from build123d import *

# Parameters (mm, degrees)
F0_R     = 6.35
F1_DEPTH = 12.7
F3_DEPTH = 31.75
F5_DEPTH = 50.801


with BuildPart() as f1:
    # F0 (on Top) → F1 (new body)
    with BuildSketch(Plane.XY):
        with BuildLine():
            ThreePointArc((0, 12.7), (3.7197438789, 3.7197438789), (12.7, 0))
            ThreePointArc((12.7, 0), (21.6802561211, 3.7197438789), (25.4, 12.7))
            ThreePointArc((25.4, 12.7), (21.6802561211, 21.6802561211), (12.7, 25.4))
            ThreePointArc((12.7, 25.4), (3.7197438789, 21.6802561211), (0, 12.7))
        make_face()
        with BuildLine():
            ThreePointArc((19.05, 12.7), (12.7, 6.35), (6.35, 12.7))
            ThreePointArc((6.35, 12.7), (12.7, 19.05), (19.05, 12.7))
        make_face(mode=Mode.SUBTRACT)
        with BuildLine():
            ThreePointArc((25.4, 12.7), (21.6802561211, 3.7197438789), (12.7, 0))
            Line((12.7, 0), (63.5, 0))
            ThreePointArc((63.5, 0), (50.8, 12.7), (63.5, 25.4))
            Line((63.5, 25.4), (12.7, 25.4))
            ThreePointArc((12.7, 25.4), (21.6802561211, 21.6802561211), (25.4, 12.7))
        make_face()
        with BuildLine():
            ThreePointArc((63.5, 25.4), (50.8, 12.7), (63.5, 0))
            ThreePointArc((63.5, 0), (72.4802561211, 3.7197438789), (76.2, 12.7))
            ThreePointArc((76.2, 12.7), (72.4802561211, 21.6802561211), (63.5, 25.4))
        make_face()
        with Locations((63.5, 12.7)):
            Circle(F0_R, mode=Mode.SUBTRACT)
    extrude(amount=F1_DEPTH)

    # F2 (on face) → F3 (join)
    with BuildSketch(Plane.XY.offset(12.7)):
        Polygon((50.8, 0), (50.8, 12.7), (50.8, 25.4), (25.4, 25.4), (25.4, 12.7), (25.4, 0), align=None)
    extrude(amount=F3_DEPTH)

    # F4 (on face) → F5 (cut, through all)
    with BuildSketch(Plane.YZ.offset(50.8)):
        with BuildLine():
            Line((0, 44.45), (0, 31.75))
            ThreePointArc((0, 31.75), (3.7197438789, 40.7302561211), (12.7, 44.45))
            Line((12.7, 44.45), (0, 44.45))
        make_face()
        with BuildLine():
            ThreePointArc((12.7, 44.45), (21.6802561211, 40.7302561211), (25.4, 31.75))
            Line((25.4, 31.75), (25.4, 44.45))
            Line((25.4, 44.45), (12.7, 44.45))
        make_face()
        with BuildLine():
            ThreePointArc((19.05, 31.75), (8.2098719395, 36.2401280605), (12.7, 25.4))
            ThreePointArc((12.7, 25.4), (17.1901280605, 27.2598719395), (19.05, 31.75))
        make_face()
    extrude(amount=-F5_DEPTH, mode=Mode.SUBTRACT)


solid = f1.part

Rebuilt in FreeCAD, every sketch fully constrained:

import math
import FreeCAD as App
import Part
import Sketcher

V = App.Vector
Q = App.Units.Quantity


def add_polygon(sketch, points):
    """Adds a closed chain of lines whose ends are joined by coincident constraints."""
    first, n = sketch.GeometryCount, len(points)
    for a, b in zip(points, points[1:] + points[:1]):
        sketch.addGeometry(Part.LineSegment(App.Vector(*a, 0), App.Vector(*b, 0)), False)
    for i in range(n):
        sketch.addConstraint(Sketcher.Constraint("Coincident", first + i, 2, first + (i + 1) % n, 1))

doc = App.newDocument("Part")
body = doc.addObject("PartDesign::Body", "Body")

sketch1 = body.newObject("Sketcher::SketchObject", "Sketch")
sketch1.AttachmentSupport = (doc.getObject("XY_Plane"), [""])
sketch1.MapMode = "FlatFace"
sketch1.addGeometry(Part.ArcOfCircle(Part.Circle(V(13, 13, 0), V(0, 0, 1), 13), math.radians(180), math.radians(270)), False)
sketch1.addGeometry(Part.LineSegment(V(13, 0, 0), V(64, 0, 0)), False)
sketch1.addGeometry(Part.ArcOfCircle(Part.Circle(V(64, 13, 0), V(0, 0, 1), 13), math.radians(-90), math.radians(0)), False)
sketch1.addGeometry(Part.ArcOfCircle(Part.Circle(V(64, 13, 0), V(0, 0, 1), 13), math.radians(0), math.radians(90)), False)
sketch1.addGeometry(Part.LineSegment(V(64, 25, 0), V(13, 25, 0)), False)
sketch1.addGeometry(Part.ArcOfCircle(Part.Circle(V(13, 13, 0), V(0, 0, 1), 13), math.radians(90), math.radians(180)), False)
sketch1.addGeometry(Part.Circle(V(13, 13, 0), V(0, 0, 1), 6), False)
sketch1.addGeometry(Part.Circle(V(64, 13, 0), V(0, 0, 1), 6), False)
sketch1.addConstraint(Sketcher.Constraint("Tangent", 0, 2, 1, 1))
sketch1.addConstraint(Sketcher.Constraint("Tangent", 1, 2, 2, 1))
sketch1.addConstraint(Sketcher.Constraint("Tangent", 2, 2, 3, 1))
sketch1.addConstraint(Sketcher.Constraint("Tangent", 3, 2, 4, 1))
sketch1.addConstraint(Sketcher.Constraint("Tangent", 4, 2, 5, 1))
sketch1.addConstraint(Sketcher.Constraint("Tangent", 5, 2, 0, 1))
sketch1.addConstraint(Sketcher.Constraint("Horizontal", 1))
sketch1.addConstraint(Sketcher.Constraint("Horizontal", 4))
sketch1.addConstraint(Sketcher.Constraint("Coincident", 6, 3, 0, 3))
sketch1.addConstraint(Sketcher.Constraint("Coincident", 7, 3, 2, 3))
sketch1.addConstraint(Sketcher.Constraint("Equal", 0, 2))
sketch1.addConstraint(Sketcher.Constraint("Equal", 2, 3))
sketch1.addConstraint(Sketcher.Constraint("Equal", 6, 7))
sketch1.addConstraint(Sketcher.Constraint("PointOnObject", 0, 2, -1))
sketch1.addConstraint(Sketcher.Constraint("PointOnObject", 5, 2, -2))
sketch1.addConstraint(Sketcher.Constraint("Horizontal", 7, 3, 2, 2))
sketch1.addConstraint(Sketcher.Constraint("Horizontal", 2, 2, 5, 2))
sketch1.addConstraint(Sketcher.Constraint("Diameter", 6, Q("0.5 in")))
sketch1.addConstraint(Sketcher.Constraint("Radius", 0, Q("0.5 in")))
sketch1.addConstraint(Sketcher.Constraint("DistanceX", 1, 1, 1, 2, Q("2 in")))
pad1 = body.newObject("PartDesign::Pad", "Pad")
pad1.Profile = sketch1
pad1.Length = Q("0.5 in")

sketch2 = body.newObject("Sketcher::SketchObject", "Sketch001")
sketch2.AttachmentSupport = (doc.getObject("XY_Plane"), [""])
sketch2.MapMode = "FlatFace"
sketch2.AttachmentOffset = App.Placement(V(0, 0, 0.5 * 25.4), App.Rotation())
add_polygon(sketch2, [(51, 0), (51, 25), (25, 25), (25, 0)])
sketch2.addConstraint(Sketcher.Constraint("Vertical", 0))
sketch2.addConstraint(Sketcher.Constraint("Horizontal", 1))
sketch2.addConstraint(Sketcher.Constraint("Vertical", 2))
sketch2.addConstraint(Sketcher.Constraint("Horizontal", 3))
sketch2.addConstraint(Sketcher.Constraint("PointOnObject", 2, 2, -1))
sketch2.addConstraint(Sketcher.Constraint("Equal", 3, 0))
sketch2.addConstraint(Sketcher.Constraint("DistanceX", 1, 2, 1, 1, Q("1 in")))
sketch2.addConstraint(Sketcher.Constraint("DistanceX", -1, 1, 0, 2, Q("2 in")))
pad2 = body.newObject("PartDesign::Pad", "Pad001")
pad2.Profile = sketch2
pad2.Length = Q("1.25 in")

sketch3 = body.newObject("Sketcher::SketchObject", "Sketch002")
sketch3.AttachmentSupport = (doc.getObject("YZ_Plane"), [""])
sketch3.MapMode = "FlatFace"
sketch3.AttachmentOffset = App.Placement(V(0, 0, 2 * 25.4), App.Rotation())
sketch3.addGeometry(Part.LineSegment(V(0, 44, 0), V(0, 32, 0)), False)
sketch3.addGeometry(Part.ArcOfCircle(Part.Circle(V(13, 32, 0), V(0, 0, 1), 13), math.radians(90), math.radians(180)), False)
sketch3.addGeometry(Part.LineSegment(V(13, 44, 0), V(0, 44, 0)), False)
sketch3.addGeometry(Part.ArcOfCircle(Part.Circle(V(13, 32, 0), V(0, 0, 1), 13), math.radians(0), math.radians(90)), False)
sketch3.addGeometry(Part.LineSegment(V(25, 32, 0), V(25, 44, 0)), False)
sketch3.addGeometry(Part.LineSegment(V(25, 44, 0), V(13, 44, 0)), False)
sketch3.addGeometry(Part.ArcOfCircle(Part.Circle(V(13, 32, 0), V(0, 0, 1), 6), math.radians(0), math.radians(270)), False)
sketch3.addGeometry(Part.ArcOfCircle(Part.Circle(V(13, 32, 0), V(0, 0, 1), 6), math.radians(-90), math.radians(0)), False)
sketch3.addConstraint(Sketcher.Constraint("Tangent", 0, 2, 1, 2))
sketch3.addConstraint(Sketcher.Constraint("Tangent", 1, 1, 2, 1))
sketch3.addConstraint(Sketcher.Constraint("Coincident", 2, 2, 0, 1))
sketch3.addConstraint(Sketcher.Constraint("Tangent", 3, 1, 4, 1))
sketch3.addConstraint(Sketcher.Constraint("Coincident", 4, 2, 5, 1))
sketch3.addConstraint(Sketcher.Constraint("Tangent", 5, 2, 3, 2))
sketch3.addConstraint(Sketcher.Constraint("Tangent", 6, 1, 7, 2))
sketch3.addConstraint(Sketcher.Constraint("Coincident", 7, 1, 6, 2))
sketch3.addConstraint(Sketcher.Constraint("Vertical", 0))
sketch3.addConstraint(Sketcher.Constraint("Horizontal", 2))
sketch3.addConstraint(Sketcher.Constraint("Vertical", 4))
sketch3.addConstraint(Sketcher.Constraint("Horizontal", 5))
sketch3.addConstraint(Sketcher.Constraint("Coincident", 3, 3, 1, 3))
sketch3.addConstraint(Sketcher.Constraint("Coincident", 6, 3, 1, 3))
sketch3.addConstraint(Sketcher.Constraint("Equal", 1, 3))
sketch3.addConstraint(Sketcher.Constraint("PointOnObject", 0, 2, -2))
sketch3.addConstraint(Sketcher.Constraint("Horizontal", 3, 1, 6, 1))
sketch3.addConstraint(Sketcher.Constraint("Vertical", 5, 2, 7, 1))
sketch3.addConstraint(Sketcher.Constraint("Radius", 1, Q("0.5 in")))
sketch3.addConstraint(Sketcher.Constraint("Radius", 6, Q("0.25 in")))
sketch3.addConstraint(Sketcher.Constraint("DistanceY", -1, 1, 7, 1, Q("1 in")))
pocket1 = body.newObject("PartDesign::Pocket", "Pocket")
pocket1.Profile = sketch3
pocket1.Type = "ThroughAll"

doc.recompute()
